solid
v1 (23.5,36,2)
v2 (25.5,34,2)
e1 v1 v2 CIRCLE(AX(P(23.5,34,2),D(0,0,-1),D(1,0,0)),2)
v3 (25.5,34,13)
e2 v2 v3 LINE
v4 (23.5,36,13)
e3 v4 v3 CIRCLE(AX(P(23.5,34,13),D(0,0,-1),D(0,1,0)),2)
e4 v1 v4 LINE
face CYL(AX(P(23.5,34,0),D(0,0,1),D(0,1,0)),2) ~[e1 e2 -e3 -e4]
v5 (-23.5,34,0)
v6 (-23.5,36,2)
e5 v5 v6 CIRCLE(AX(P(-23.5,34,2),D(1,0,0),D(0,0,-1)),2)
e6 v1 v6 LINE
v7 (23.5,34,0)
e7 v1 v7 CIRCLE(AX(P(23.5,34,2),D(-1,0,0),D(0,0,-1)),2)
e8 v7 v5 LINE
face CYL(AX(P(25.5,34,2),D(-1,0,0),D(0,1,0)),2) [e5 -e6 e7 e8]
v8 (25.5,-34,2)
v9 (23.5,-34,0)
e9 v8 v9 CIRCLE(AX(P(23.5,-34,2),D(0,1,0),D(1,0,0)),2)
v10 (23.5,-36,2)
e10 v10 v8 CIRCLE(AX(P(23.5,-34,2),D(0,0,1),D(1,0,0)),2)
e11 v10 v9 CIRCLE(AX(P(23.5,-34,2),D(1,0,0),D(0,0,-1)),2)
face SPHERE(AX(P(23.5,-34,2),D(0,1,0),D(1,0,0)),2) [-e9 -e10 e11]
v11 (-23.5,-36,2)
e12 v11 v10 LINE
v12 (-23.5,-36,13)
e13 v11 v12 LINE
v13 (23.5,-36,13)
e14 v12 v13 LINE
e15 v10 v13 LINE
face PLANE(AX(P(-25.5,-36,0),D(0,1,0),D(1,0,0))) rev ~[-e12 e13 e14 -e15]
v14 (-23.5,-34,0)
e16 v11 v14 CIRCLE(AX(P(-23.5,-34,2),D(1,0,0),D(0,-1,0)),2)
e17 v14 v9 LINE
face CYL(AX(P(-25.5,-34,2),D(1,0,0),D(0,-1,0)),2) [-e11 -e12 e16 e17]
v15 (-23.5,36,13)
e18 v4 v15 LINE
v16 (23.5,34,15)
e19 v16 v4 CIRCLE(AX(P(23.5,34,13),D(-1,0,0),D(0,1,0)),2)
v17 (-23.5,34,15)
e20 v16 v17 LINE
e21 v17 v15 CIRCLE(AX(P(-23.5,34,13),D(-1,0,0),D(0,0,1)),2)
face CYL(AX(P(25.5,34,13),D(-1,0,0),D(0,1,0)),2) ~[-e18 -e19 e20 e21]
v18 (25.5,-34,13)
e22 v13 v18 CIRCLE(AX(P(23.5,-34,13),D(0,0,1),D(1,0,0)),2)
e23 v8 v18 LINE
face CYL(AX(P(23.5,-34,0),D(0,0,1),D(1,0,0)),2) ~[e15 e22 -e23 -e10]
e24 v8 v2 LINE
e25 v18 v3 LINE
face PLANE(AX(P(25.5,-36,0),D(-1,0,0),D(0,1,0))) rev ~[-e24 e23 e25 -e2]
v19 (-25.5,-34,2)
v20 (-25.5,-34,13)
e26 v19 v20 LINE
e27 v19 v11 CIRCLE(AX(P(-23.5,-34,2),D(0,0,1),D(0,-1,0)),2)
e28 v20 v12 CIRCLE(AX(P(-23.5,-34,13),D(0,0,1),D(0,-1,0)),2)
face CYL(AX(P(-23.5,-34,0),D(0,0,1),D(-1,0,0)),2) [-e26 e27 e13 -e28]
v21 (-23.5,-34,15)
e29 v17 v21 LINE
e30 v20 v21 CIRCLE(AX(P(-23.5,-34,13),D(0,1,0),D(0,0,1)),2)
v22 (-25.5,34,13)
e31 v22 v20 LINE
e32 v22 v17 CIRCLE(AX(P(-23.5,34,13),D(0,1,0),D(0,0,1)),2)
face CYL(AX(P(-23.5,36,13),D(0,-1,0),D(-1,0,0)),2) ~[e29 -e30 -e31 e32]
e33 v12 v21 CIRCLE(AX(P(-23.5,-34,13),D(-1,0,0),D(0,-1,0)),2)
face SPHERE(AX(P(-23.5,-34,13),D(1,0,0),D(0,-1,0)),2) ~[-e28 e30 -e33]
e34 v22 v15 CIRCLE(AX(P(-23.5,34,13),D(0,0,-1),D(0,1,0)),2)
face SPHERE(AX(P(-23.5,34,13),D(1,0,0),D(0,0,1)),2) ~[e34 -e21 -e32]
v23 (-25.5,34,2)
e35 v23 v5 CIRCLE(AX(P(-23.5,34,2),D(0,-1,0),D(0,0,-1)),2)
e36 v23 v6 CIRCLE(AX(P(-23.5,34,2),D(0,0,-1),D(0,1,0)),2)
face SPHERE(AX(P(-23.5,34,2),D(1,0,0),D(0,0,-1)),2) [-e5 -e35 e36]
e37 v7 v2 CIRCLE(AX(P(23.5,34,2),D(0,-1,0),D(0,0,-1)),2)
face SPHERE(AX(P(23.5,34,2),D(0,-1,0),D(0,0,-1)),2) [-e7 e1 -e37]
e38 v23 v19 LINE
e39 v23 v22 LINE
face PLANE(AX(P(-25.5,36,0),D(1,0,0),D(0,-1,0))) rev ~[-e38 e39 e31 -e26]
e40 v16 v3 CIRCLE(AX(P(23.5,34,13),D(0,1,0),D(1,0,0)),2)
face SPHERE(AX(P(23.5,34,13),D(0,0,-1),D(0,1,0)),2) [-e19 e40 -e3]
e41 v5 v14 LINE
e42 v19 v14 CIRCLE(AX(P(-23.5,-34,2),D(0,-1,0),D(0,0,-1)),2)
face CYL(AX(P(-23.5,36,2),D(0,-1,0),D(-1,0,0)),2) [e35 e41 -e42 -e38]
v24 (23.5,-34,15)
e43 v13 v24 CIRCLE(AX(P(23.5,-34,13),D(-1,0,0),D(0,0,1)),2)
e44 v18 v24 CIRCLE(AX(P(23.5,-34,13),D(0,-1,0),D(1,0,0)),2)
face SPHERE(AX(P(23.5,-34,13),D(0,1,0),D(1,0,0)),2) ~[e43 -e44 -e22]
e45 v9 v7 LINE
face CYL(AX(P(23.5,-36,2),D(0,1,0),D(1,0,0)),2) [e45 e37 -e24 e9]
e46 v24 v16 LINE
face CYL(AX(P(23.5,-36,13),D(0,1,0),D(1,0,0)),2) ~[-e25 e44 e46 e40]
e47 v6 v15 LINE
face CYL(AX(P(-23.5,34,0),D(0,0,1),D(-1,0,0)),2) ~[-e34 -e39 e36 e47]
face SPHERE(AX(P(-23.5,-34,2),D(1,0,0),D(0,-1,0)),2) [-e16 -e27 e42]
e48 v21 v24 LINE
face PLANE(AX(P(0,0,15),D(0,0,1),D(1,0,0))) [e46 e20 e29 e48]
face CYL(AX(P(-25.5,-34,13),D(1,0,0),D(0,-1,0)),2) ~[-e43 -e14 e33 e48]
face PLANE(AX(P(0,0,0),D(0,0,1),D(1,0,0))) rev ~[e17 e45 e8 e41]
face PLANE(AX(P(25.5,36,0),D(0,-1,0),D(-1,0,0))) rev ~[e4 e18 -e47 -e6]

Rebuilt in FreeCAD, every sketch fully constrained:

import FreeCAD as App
import Part
import Sketcher
from FreeCAD import Vector
Q = App.Units.Quantity


def add_polygon(sketch, points):
    """Adds a closed chain of lines whose ends are joined by coincident constraints."""
    first, n = sketch.GeometryCount, len(points)
    for a, b in zip(points, points[1:] + points[:1]):
        sketch.addGeometry(Part.LineSegment(App.Vector(*a, 0), App.Vector(*b, 0)), False)
    for i in range(n):
        sketch.addConstraint(Sketcher.Constraint("Coincident", first + i, 2, first + (i + 1) % n, 1))

doc = App.newDocument("Part")
body = doc.addObject("PartDesign::Body", "Body")

# Sketch on XY plane
sketch1 = body.newObject("Sketcher::SketchObject", "Sketch")
sketch1.AttachmentSupport = (doc.getObject("XY_Plane"), [""])
sketch1.MapMode = "FlatFace"
add_polygon(sketch1, [(-26, 36), (-26, -36), (26, -36), (26, 36)])  # lines 0-3
sketch1.addConstraint([
    Sketcher.Constraint("Vertical", 0),
    Sketcher.Constraint("Horizontal", 1),
    Sketcher.Constraint("Vertical", 2),
    Sketcher.Constraint("Horizontal", 3),
    Sketcher.Constraint("Symmetric", 0, 2, 2, 2, -1, 1),
    Sketcher.Constraint("DistanceX", 1, 1, 1, 2, Q("51 mm")),
    Sketcher.Constraint("DistanceY", 0, 2, 0, 1, Q("72 mm")),
])
pad1 = body.newObject("PartDesign::Pad", "Pad")
pad1.Profile = sketch1
pad1.Length = 15
doc.recompute()

fillet = body.newObject("PartDesign::Fillet", "Fillet")
fillet.Base = (pad1, ["Edge1"])
fillet.UseAllEdges = True
fillet.Radius = 2

doc.recompute()
